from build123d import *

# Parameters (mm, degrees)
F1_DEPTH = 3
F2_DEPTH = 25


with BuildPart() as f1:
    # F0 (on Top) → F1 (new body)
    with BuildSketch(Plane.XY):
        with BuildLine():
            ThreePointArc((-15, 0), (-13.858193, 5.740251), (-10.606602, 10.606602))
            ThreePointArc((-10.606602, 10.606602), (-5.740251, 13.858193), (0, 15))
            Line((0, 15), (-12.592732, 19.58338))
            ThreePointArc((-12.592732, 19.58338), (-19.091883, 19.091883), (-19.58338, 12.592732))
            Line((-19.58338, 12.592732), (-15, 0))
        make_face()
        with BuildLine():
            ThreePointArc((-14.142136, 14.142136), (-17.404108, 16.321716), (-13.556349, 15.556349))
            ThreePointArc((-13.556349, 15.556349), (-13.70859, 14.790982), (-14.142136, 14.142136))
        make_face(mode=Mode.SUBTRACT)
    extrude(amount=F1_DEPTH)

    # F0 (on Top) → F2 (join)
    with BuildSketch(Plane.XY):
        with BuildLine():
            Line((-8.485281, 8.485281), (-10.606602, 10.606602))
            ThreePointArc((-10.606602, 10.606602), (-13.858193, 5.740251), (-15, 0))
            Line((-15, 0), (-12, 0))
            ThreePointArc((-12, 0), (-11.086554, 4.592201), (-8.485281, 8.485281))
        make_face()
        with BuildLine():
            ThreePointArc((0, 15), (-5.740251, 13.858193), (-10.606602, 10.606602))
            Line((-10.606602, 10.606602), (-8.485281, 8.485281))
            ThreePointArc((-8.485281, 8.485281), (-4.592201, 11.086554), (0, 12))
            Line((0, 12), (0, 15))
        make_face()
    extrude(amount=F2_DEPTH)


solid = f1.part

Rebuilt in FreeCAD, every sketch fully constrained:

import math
import FreeCAD as App
import Part
import Sketcher

V = App.Vector
Q = App.Units.Quantity

doc = App.newDocument("Part")
params = doc.addObject("Spreadsheet::Sheet", "Params")
for row, (alias, value) in enumerate([
    ("sketch1_radius", "5 mm"),
    ("sketch1_radius2", "2 mm"),
    ("pad1_length", "3 mm"),
    ("sketch2_radius", "12.000002 mm"),
    ("sketch2_width", "3 mm"),
    ("pad2_length", "25 mm"),
], start=1):
    params.set(f"A{row}", alias)
    params.set(f"B{row}", "=" + value)
    params.setAlias(f"B{row}", alias)

body = doc.addObject("PartDesign::Body", "Body")

# Sketch on XY plane
sketch1 = body.newObject("Sketcher::SketchObject", "Sketch")
sketch1.AttachmentSupport = (doc.getObject("XY_Plane"), [""])
sketch1.MapMode = "FlatFace"
sketch1.addGeometry(Part.ArcOfCircle(Part.Circle(V(0, 0, 0), V(0, 0, 1), 15), math.radians(135), math.radians(180)), False)
sketch1.addGeometry(Part.ArcOfCircle(Part.Circle(V(0, 0, 0), V(0, 0, 1), 15), math.radians(90), math.radians(135)), False)
sketch1.addGeometry(Part.LineSegment(V(0, 15, 0), V(-12.6, 19.6, 0)), False)
sketch1.addGeometry(Part.ArcOfCircle(Part.Circle(V(-15.6, 15.6, 0), V(0, 0, 1), 5), math.radians(54), math.radians(216)), False)
sketch1.addGeometry(Part.LineSegment(V(-19.6, 12.6, 0), V(-15, 0, 0)), False)
sketch1.addGeometry(Part.ArcOfCircle(Part.Circle(V(-15.6, 15.6, 0), V(0, 0, 1), 2), math.radians(-45), math.radians(0)), False)
sketch1.addGeometry(Part.ArcOfCircle(Part.Circle(V(-15.6, 15.6, 0), V(0, 0, 1), 2), math.radians(0), math.radians(315)), False)
sketch1.addConstraint(Sketcher.Constraint("Tangent", 0, 1, 1, 2))
sketch1.addConstraint(Sketcher.Constraint("Coincident", 1, 1, 2, 1))
sketch1.addConstraint(Sketcher.Constraint("Coincident", 2, 2, 3, 1))
sketch1.addConstraint(Sketcher.Constraint("Coincident", 3, 2, 4, 1))
sketch1.addConstraint(Sketcher.Constraint("Coincident", 4, 2, 0, 2))
sketch1.addConstraint(Sketcher.Constraint("Tangent", 5, 1, 6, 2))
sketch1.addConstraint(Sketcher.Constraint("Coincident", 6, 1, 5, 2))
sketch1.addConstraint(Sketcher.Constraint("Coincident", 0, 3, -1, 1))
sketch1.addConstraint(Sketcher.Constraint("Coincident", 5, 3, 3, 3))
sketch1.addConstraint(Sketcher.Constraint("Equal", 0, 1))
sketch1.addConstraint(Sketcher.Constraint("PointOnObject", 1, 1, -2))
sketch1.addConstraint(Sketcher.Constraint("PointOnObject", 4, 2, -1))
sketch1.addConstraint(Sketcher.Constraint("Horizontal", 5, 3, 6, 1))
sketch1.addConstraint(Sketcher.Constraint("Equal", 2, 4))
sketch1.addConstraint(Sketcher.Constraint("Radius", 3, Q("5 mm")))
sketch1.addConstraint(Sketcher.Constraint("Radius", 6, Q("2 mm")))
sketch1.addConstraint(Sketcher.Constraint("Angle", 2, Q("159.999998 deg")))
sketch1.addConstraint(Sketcher.Constraint("Angle", 4, Q("-69.999998 deg")))
sketch1.addConstraint(Sketcher.Constraint("DistanceY", -1, 1, 1, 1, Q("15 mm")))
sketch1.addConstraint(Sketcher.Constraint("DistanceX", 3, 3, -1, 1, Q("15.556349 mm")))
sketch1.addConstraint(Sketcher.Constraint("DistanceX", 5, 3, 0, 1, Q("4.949742 mm")))
sketch1.addConstraint(Sketcher.Constraint("DistanceX", 5, 1, -1, 1, Q("14.142136 mm")))
sketch1.setExpression("Constraints[14]", "Params.sketch1_radius")
sketch1.setExpression("Constraints[15]", "Params.sketch1_radius2")
pad1 = body.newObject("PartDesign::Pad", "Pad")
pad1.Profile = sketch1
pad1.setExpression("Length", "Params.pad1_length")

# Sketch on XY plane
sketch2 = body.newObject("Sketcher::SketchObject", "Sketch001")
sketch2.AttachmentSupport = (doc.getObject("XY_Plane"), [""])
sketch2.MapMode = "FlatFace"
sketch2.addGeometry(Part.ArcOfCircle(Part.Circle(V(0, 0, 0), V(0, 0, 1), 15), math.radians(135), math.radians(180)), False)
sketch2.addGeometry(Part.LineSegment(V(-15, 0, 0), V(-12, 0, 0)), False)
sketch2.addGeometry(Part.ArcOfCircle(Part.Circle(V(0, 0, 0), V(0, 0, 1), 12), math.radians(135), math.radians(180)), False)
sketch2.addGeometry(Part.ArcOfCircle(Part.Circle(V(0, 0, 0), V(0, 0, 1), 12), math.radians(90), math.radians(135)), False)
sketch2.addGeometry(Part.LineSegment(V(0, 12, 0), V(0, 15, 0)), False)
sketch2.addGeometry(Part.ArcOfCircle(Part.Circle(V(0, 0, 0), V(0, 0, 1), 15), math.radians(90), math.radians(135)), False)
sketch2.addConstraint(Sketcher.Constraint("Coincident", 0, 2, 1, 1))
sketch2.addConstraint(Sketcher.Constraint("Coincident", 1, 2, 2, 2))
sketch2.addConstraint(Sketcher.Constraint("Tangent", 2, 1, 3, 2))
sketch2.addConstraint(Sketcher.Constraint("Coincident", 3, 1, 4, 1))
sketch2.addConstraint(Sketcher.Constraint("Coincident", 4, 2, 5, 1))
sketch2.addConstraint(Sketcher.Constraint("Tangent", 5, 2, 0, 1))
sketch2.addConstraint(Sketcher.Constraint("Horizontal", 1))
sketch2.addConstraint(Sketcher.Constraint("Vertical", 4))
sketch2.addConstraint(Sketcher.Constraint("Coincident", 0, 3, -1, 1))
sketch2.addConstraint(Sketcher.Constraint("Coincident", 2, 3, -1, 1))
sketch2.addConstraint(Sketcher.Constraint("Equal", 2, 3))
sketch2.addConstraint(Sketcher.Constraint("Equal", 0, 5))
sketch2.addConstraint(Sketcher.Constraint("PointOnObject", 0, 2, -1))
sketch2.addConstraint(Sketcher.Constraint("PointOnObject", 3, 1, -2))
sketch2.addConstraint(Sketcher.Constraint("Radius", 2, Q("12.000002 mm")))
sketch2.addConstraint(Sketcher.Constraint("DistanceX", 1, 1, 1, 2, Q("3 mm")))
sketch2.addConstraint(Sketcher.Constraint("DistanceX", 2, 1, -1, 1, Q("8.485281 mm")))
sketch2.addConstraint(Sketcher.Constraint("DistanceX", 5, 2, 2, 1, Q("2.121321 mm")))
sketch2.setExpression("Constraints[14]", "Params.sketch2_radius")
sketch2.setExpression("Constraints[15]", "Params.sketch2_width")
pad2 = body.newObject("PartDesign::Pad", "Pad001")
pad2.Profile = sketch2
pad2.setExpression("Length", "Params.pad2_length")

doc.recompute()
